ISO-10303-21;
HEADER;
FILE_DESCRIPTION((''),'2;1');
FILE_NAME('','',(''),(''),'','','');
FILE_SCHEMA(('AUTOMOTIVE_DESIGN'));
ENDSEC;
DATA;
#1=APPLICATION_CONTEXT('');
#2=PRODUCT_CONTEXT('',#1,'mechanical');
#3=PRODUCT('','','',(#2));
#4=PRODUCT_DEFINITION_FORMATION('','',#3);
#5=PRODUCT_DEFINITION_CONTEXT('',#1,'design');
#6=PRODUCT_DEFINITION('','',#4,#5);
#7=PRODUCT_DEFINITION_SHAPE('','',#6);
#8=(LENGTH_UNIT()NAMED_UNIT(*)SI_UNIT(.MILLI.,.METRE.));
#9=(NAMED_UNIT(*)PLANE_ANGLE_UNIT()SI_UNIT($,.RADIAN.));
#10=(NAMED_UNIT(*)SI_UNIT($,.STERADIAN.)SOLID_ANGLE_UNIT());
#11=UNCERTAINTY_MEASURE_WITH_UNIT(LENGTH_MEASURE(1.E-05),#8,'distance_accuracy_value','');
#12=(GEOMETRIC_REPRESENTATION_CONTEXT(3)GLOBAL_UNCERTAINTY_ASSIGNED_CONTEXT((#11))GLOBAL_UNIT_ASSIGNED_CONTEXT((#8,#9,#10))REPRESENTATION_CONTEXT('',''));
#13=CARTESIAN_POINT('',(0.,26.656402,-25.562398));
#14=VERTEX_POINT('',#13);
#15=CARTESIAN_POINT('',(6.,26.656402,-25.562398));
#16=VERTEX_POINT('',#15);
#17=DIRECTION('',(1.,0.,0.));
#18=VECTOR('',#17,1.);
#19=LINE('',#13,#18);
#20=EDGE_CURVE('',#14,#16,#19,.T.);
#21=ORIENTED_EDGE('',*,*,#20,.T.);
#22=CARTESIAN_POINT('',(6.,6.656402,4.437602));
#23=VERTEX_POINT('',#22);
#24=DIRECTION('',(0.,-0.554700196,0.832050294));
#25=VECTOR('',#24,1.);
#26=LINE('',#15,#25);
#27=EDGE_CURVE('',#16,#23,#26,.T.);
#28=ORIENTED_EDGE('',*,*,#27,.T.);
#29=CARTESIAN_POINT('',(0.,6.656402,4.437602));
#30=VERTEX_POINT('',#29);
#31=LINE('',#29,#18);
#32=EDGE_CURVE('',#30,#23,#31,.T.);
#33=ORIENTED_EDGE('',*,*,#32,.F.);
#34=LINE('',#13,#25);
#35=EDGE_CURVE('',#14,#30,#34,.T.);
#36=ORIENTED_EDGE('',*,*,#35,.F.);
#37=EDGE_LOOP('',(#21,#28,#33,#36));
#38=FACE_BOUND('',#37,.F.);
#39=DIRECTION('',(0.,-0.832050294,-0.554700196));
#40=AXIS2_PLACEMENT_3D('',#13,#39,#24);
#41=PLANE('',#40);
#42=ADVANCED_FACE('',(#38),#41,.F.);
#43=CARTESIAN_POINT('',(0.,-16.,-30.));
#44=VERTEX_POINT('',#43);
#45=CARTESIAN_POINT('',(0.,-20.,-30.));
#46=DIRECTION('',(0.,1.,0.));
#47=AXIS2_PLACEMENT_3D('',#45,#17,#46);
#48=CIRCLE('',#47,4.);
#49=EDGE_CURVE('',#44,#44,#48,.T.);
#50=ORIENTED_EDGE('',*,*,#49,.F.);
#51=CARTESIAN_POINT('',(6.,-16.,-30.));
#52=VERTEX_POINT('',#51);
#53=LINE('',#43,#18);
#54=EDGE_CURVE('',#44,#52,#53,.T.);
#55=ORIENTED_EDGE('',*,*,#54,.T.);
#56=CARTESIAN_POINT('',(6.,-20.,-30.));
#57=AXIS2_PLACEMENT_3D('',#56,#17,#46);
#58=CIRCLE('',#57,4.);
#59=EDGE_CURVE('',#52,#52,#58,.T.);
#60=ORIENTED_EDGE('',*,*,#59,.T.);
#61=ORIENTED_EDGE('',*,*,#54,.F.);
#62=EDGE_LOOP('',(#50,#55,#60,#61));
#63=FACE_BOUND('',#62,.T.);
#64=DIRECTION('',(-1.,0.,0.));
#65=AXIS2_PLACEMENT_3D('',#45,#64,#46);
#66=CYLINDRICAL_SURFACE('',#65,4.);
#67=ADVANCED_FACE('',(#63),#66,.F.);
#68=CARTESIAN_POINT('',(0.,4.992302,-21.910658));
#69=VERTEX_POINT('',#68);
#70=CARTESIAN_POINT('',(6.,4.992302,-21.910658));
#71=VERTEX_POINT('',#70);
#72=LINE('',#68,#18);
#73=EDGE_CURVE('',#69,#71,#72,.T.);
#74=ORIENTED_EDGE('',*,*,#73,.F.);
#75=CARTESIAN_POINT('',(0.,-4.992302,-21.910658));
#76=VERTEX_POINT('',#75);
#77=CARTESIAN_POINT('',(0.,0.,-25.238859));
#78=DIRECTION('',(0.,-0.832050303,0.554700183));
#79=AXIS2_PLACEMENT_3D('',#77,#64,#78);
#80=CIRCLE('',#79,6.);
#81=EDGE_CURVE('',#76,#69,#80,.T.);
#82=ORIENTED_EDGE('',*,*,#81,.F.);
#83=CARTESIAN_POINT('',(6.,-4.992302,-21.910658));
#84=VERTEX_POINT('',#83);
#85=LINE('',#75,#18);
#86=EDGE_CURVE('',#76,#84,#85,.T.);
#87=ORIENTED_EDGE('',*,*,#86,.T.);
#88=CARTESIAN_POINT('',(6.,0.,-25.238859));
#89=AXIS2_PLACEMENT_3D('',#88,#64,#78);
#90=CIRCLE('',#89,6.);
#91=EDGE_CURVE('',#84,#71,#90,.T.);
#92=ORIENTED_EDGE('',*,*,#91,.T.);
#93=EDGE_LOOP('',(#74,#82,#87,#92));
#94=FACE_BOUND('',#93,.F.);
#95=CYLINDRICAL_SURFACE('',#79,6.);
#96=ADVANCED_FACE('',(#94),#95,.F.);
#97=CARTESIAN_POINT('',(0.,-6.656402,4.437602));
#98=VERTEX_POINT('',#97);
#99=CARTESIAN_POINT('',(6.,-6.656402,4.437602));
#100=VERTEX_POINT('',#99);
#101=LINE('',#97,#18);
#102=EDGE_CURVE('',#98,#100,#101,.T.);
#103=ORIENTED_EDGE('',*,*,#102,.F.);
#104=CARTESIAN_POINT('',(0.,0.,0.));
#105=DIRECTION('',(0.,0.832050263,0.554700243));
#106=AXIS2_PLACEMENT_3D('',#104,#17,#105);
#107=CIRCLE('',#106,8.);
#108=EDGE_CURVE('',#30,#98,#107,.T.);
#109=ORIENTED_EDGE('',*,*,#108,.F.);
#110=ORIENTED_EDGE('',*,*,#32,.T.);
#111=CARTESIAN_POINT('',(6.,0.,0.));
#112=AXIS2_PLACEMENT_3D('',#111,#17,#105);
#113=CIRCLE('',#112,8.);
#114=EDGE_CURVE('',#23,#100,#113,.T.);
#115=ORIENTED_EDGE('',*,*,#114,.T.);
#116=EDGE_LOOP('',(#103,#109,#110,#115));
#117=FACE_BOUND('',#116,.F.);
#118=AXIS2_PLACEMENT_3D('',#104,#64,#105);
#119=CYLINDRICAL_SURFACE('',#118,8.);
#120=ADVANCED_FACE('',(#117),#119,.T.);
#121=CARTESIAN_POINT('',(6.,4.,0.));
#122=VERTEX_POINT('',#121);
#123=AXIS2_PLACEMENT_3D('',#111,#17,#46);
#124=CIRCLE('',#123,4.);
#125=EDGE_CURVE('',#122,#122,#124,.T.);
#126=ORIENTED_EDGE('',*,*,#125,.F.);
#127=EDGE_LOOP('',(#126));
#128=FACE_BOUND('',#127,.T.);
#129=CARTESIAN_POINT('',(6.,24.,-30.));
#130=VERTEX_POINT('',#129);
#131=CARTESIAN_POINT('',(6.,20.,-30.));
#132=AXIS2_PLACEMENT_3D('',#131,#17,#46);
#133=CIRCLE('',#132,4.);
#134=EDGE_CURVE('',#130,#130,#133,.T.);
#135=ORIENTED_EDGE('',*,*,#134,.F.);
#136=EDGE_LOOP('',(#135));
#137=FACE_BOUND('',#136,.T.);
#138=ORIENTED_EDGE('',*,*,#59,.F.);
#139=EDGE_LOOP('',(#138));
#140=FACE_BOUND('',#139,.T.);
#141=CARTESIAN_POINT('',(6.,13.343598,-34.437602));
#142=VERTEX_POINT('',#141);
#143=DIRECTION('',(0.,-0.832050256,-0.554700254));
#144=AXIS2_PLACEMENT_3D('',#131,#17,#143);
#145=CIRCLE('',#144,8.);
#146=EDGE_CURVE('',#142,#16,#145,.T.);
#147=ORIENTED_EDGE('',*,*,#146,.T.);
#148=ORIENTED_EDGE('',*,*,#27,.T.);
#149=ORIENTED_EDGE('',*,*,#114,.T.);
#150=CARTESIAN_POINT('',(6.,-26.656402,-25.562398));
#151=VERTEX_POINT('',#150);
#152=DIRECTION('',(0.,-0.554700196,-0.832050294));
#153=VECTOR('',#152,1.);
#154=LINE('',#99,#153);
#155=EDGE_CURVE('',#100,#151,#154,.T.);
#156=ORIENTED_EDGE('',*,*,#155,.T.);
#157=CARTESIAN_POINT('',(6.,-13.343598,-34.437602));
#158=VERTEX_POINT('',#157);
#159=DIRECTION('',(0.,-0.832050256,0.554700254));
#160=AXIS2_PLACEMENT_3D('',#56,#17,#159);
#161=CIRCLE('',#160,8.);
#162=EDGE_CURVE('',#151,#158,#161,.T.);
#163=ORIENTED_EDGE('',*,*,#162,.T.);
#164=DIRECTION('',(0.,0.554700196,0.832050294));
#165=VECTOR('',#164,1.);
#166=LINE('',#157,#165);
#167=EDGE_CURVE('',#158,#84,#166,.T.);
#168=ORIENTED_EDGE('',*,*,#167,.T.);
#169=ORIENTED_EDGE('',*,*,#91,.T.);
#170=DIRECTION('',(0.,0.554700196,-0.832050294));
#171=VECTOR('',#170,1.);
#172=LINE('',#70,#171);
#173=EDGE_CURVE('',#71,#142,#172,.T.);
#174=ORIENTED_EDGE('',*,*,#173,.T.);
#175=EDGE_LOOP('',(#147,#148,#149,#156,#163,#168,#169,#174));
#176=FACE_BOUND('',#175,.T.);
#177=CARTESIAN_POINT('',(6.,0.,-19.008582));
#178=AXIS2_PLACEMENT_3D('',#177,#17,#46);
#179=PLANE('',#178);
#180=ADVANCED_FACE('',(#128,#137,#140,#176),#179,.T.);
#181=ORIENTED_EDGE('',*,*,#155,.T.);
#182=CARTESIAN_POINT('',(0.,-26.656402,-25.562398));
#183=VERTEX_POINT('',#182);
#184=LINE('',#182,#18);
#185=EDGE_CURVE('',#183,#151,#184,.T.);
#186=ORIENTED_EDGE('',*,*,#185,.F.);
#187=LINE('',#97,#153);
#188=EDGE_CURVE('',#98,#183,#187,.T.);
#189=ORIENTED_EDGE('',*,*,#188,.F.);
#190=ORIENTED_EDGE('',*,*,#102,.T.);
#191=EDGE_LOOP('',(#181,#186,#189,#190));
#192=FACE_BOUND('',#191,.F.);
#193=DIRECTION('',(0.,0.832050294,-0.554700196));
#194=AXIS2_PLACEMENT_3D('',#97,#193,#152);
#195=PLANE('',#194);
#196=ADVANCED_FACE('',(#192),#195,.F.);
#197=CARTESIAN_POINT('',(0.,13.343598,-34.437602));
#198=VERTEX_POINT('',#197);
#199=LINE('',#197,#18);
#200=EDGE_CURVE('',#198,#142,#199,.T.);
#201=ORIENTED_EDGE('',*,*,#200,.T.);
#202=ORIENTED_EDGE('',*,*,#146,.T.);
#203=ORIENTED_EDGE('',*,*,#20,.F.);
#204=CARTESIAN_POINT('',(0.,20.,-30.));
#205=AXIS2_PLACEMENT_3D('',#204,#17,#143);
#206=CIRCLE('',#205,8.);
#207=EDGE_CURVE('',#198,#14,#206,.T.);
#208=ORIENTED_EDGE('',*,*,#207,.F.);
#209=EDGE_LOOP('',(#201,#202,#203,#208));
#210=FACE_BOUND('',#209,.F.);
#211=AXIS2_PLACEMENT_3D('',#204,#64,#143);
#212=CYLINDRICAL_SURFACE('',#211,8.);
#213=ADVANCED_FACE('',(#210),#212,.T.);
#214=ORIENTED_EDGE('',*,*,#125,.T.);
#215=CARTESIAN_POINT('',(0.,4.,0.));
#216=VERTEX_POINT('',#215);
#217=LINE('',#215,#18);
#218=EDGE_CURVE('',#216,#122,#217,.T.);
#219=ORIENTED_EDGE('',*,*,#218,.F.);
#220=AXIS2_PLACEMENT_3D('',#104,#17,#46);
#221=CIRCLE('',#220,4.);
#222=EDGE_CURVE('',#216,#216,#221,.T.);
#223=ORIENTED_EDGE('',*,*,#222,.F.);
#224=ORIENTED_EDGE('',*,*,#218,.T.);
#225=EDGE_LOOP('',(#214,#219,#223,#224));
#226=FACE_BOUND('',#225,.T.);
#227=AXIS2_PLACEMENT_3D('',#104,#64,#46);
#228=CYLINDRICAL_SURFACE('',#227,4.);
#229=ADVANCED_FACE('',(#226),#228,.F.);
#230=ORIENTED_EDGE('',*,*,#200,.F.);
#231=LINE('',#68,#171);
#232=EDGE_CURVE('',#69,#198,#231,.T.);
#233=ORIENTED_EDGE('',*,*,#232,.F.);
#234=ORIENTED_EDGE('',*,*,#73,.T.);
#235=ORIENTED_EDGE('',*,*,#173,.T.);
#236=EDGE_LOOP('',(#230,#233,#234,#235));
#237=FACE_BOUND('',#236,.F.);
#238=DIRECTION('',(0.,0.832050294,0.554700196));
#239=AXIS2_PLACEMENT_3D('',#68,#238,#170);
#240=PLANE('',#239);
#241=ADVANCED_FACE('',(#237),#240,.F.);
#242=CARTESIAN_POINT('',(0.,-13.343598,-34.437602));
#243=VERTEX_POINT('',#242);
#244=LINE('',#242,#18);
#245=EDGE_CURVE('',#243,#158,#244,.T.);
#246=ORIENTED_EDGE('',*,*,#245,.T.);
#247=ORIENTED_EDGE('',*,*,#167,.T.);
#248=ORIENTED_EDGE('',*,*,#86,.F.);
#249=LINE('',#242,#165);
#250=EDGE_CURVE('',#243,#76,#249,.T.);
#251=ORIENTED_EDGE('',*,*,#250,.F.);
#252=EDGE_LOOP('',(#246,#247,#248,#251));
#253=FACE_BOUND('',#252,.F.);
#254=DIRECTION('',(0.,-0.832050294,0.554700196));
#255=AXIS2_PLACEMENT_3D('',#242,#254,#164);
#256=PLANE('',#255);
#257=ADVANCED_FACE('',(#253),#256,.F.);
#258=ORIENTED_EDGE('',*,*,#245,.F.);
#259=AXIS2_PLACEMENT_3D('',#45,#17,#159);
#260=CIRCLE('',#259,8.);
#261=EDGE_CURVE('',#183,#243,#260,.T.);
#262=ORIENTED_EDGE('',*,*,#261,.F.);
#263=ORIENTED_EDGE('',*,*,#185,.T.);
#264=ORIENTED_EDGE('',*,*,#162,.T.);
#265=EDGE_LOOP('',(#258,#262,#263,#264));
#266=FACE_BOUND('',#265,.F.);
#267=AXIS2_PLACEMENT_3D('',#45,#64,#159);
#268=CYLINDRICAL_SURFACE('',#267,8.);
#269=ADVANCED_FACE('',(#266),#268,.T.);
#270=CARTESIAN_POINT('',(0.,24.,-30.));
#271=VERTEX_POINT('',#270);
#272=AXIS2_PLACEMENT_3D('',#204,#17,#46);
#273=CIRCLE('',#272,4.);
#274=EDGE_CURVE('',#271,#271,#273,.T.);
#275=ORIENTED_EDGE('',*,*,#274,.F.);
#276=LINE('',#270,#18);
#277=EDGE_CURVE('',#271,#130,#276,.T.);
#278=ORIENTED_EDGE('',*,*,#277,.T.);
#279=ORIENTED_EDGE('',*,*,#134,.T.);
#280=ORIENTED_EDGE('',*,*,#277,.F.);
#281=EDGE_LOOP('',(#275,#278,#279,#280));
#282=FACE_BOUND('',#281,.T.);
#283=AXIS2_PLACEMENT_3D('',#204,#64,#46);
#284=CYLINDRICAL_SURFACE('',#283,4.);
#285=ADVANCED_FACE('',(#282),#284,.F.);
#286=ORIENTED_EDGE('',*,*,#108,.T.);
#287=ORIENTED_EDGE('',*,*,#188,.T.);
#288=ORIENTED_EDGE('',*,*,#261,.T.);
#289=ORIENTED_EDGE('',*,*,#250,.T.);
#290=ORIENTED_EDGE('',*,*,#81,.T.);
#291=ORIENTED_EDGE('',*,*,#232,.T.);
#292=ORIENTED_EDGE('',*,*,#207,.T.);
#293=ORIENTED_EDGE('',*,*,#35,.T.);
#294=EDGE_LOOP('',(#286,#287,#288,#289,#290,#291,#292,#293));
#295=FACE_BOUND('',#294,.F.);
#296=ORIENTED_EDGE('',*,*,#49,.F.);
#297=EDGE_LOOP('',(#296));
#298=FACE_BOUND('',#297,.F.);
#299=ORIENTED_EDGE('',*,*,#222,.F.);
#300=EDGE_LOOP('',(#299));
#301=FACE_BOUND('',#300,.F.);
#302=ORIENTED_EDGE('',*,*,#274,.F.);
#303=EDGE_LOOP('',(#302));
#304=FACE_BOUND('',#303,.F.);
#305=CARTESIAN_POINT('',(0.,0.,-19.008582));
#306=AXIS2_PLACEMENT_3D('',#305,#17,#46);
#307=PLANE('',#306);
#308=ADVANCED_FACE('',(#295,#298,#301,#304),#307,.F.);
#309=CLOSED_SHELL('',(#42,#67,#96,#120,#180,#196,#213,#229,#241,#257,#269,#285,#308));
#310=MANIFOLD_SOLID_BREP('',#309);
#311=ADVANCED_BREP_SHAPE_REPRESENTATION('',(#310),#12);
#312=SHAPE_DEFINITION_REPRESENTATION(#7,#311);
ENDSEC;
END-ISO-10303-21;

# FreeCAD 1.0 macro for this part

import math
import FreeCAD as App
import Part
import Sketcher
Q = App.Units.Quantity

doc = App.newDocument("Part")
body = doc.addObject("PartDesign::Body", "Body")

sketch1 = doc.addObject("Sketcher::SketchObject", "Sketch")
body.addObject(sketch1)
sketch1.AttachmentSupport = (doc.YZ_Plane, [""])
sketch1.MapMode = "FlatFace"
sketch1.addGeometry([
    Part.LineSegment(App.Vector(26.7, -25.6, 0), App.Vector(6.7, 4.4, 0)),
    Part.ArcOfCircle(Part.Circle(App.Vector(0, 0, 0), App.Vector(0, 0, 1), 8), math.radians(34), math.radians(146)),
    Part.LineSegment(App.Vector(-6.7, 4.4, 0), App.Vector(-26.7, -25.6, 0)),
    Part.ArcOfCircle(Part.Circle(App.Vector(-20, -30, 0), App.Vector(0, 0, 1), 8), math.radians(146), math.radians(326)),
    Part.LineSegment(App.Vector(-13.3, -34.4, 0), App.Vector(-5, -21.9, 0)),
    Part.ArcOfCircle(Part.Circle(App.Vector(0, -25.2, 0), App.Vector(0, 0, 1), 6), math.radians(34), math.radians(146)),
    Part.LineSegment(App.Vector(5, -21.9, 0), App.Vector(13.3, -34.4, 0)),
    Part.ArcOfCircle(Part.Circle(App.Vector(20, -30, 0), App.Vector(0, 0, 1), 8), math.radians(-146), math.radians(34)),
    Part.Circle(App.Vector(-20, -30, 0), App.Vector(0, 0, 1), 4),
    Part.Circle(App.Vector(20, -30, 0), App.Vector(0, 0, 1), 4),
    Part.Circle(App.Vector(0, 0, 0), App.Vector(0, 0, 1), 4),
], False)
sketch1.addConstraint([
    Sketcher.Constraint("Tangent", 0, 2, 1, 1),
    Sketcher.Constraint("Tangent", 1, 2, 2, 1),
    Sketcher.Constraint("Tangent", 2, 2, 3, 1),
    Sketcher.Constraint("Tangent", 3, 2, 4, 1),
    Sketcher.Constraint("Tangent", 4, 2, 5, 2),
    Sketcher.Constraint("Tangent", 5, 1, 6, 1),
    Sketcher.Constraint("Tangent", 6, 2, 7, 1),
    Sketcher.Constraint("Tangent", 7, 2, 0, 1),
    Sketcher.Constraint("Coincident", 1, 3, -1, 1),
    Sketcher.Constraint("Coincident", 10, 3, -1, 1),
    Sketcher.Constraint("Coincident", 8, 3, 3, 3),
    Sketcher.Constraint("Coincident", 9, 3, 7, 3),
    Sketcher.Constraint("Equal", 1, 3),
    Sketcher.Constraint("Equal", 3, 7),
    Sketcher.Constraint("Equal", 8, 9),
    Sketcher.Constraint("Equal", 9, 10),
    Sketcher.Constraint("Symmetric", 3, 3, 7, 3, -2),
    Sketcher.Constraint("PointOnObject", 5, 3, -2),
    Sketcher.Constraint("Parallel", 2, 4),
    Sketcher.Constraint("Diameter", 8, Q("8 mm")),
    Sketcher.Constraint("Radius", 1, Q("8 mm")),
    Sketcher.Constraint("Radius", 5, Q("6 mm")),
    Sketcher.Constraint("DistanceX", 3, 3, -1, 1, Q("20 mm")),
    Sketcher.Constraint("DistanceY", 3, 3, -1, 1, Q("30 mm")),
])
pad1 = doc.addObject("PartDesign::Pad", "Pad")
body.addObject(pad1)
pad1.Profile = sketch1
pad1.Length = 6

doc.recompute()
